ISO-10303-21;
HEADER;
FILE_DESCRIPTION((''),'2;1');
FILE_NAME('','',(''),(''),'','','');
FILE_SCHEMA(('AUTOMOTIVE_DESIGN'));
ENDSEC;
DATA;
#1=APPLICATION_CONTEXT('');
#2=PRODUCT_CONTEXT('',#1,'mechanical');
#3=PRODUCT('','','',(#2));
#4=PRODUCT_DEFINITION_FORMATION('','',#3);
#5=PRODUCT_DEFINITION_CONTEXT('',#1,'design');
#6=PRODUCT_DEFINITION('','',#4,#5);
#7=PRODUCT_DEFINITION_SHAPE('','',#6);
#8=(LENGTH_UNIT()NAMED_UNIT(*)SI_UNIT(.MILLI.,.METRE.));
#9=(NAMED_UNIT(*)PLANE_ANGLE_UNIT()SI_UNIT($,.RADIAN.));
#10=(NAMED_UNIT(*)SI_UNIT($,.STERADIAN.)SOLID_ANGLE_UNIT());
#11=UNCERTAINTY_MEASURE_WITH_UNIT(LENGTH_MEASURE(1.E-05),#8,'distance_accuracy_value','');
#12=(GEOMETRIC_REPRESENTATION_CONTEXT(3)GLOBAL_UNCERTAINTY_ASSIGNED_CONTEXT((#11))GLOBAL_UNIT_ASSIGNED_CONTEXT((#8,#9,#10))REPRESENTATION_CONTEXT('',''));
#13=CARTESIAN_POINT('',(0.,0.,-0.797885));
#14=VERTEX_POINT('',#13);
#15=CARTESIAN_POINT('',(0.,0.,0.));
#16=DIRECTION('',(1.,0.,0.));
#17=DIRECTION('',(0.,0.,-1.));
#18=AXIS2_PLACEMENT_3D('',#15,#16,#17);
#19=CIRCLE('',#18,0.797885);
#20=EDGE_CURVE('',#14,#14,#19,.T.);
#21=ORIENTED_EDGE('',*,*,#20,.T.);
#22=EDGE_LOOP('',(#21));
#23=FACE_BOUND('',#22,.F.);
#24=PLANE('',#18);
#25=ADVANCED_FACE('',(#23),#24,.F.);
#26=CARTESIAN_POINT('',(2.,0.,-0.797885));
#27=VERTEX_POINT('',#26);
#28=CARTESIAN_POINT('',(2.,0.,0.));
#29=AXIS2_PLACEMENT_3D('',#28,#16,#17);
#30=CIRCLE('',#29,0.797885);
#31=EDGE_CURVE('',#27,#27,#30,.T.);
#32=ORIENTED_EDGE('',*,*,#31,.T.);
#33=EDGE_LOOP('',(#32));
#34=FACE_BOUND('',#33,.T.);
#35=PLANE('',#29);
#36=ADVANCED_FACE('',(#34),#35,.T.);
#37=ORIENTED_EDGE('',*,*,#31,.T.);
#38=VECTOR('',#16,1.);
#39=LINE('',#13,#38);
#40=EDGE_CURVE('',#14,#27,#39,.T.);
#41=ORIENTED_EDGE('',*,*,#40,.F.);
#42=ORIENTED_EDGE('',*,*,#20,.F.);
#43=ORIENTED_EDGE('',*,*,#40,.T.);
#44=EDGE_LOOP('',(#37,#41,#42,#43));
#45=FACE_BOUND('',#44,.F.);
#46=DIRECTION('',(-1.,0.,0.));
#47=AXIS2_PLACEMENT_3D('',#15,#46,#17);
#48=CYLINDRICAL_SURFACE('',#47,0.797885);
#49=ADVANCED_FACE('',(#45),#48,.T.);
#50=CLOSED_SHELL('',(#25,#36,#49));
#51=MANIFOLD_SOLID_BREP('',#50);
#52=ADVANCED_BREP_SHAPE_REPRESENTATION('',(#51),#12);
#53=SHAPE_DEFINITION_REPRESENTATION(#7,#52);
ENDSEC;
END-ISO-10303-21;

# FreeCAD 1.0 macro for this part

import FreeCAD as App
import Part
import Sketcher
from FreeCAD import Vector

doc = App.newDocument("Part")
body = doc.addObject("PartDesign::Body", "Body")

# Sketch on YZ plane
sketch1 = body.newObject("Sketcher::SketchObject", "Sketch")
sketch1.AttachmentSupport = (doc.getObject("YZ_Plane"), [""])
sketch1.MapMode = "FlatFace"
sketch1.addGeometry(Part.Circle(Vector(0, 0, 0), Vector(0, 0, 1), 0.8), False)
sketch1.addConstraint([
    Sketcher.Constraint("Coincident", 0, 3, -1, 1),
    Sketcher.Constraint("Diameter", 0, 1.595769),
])
pad1 = body.newObject("PartDesign::Pad", "Pad")
pad1.Profile = sketch1
pad1.Length = 2

doc.recompute()
